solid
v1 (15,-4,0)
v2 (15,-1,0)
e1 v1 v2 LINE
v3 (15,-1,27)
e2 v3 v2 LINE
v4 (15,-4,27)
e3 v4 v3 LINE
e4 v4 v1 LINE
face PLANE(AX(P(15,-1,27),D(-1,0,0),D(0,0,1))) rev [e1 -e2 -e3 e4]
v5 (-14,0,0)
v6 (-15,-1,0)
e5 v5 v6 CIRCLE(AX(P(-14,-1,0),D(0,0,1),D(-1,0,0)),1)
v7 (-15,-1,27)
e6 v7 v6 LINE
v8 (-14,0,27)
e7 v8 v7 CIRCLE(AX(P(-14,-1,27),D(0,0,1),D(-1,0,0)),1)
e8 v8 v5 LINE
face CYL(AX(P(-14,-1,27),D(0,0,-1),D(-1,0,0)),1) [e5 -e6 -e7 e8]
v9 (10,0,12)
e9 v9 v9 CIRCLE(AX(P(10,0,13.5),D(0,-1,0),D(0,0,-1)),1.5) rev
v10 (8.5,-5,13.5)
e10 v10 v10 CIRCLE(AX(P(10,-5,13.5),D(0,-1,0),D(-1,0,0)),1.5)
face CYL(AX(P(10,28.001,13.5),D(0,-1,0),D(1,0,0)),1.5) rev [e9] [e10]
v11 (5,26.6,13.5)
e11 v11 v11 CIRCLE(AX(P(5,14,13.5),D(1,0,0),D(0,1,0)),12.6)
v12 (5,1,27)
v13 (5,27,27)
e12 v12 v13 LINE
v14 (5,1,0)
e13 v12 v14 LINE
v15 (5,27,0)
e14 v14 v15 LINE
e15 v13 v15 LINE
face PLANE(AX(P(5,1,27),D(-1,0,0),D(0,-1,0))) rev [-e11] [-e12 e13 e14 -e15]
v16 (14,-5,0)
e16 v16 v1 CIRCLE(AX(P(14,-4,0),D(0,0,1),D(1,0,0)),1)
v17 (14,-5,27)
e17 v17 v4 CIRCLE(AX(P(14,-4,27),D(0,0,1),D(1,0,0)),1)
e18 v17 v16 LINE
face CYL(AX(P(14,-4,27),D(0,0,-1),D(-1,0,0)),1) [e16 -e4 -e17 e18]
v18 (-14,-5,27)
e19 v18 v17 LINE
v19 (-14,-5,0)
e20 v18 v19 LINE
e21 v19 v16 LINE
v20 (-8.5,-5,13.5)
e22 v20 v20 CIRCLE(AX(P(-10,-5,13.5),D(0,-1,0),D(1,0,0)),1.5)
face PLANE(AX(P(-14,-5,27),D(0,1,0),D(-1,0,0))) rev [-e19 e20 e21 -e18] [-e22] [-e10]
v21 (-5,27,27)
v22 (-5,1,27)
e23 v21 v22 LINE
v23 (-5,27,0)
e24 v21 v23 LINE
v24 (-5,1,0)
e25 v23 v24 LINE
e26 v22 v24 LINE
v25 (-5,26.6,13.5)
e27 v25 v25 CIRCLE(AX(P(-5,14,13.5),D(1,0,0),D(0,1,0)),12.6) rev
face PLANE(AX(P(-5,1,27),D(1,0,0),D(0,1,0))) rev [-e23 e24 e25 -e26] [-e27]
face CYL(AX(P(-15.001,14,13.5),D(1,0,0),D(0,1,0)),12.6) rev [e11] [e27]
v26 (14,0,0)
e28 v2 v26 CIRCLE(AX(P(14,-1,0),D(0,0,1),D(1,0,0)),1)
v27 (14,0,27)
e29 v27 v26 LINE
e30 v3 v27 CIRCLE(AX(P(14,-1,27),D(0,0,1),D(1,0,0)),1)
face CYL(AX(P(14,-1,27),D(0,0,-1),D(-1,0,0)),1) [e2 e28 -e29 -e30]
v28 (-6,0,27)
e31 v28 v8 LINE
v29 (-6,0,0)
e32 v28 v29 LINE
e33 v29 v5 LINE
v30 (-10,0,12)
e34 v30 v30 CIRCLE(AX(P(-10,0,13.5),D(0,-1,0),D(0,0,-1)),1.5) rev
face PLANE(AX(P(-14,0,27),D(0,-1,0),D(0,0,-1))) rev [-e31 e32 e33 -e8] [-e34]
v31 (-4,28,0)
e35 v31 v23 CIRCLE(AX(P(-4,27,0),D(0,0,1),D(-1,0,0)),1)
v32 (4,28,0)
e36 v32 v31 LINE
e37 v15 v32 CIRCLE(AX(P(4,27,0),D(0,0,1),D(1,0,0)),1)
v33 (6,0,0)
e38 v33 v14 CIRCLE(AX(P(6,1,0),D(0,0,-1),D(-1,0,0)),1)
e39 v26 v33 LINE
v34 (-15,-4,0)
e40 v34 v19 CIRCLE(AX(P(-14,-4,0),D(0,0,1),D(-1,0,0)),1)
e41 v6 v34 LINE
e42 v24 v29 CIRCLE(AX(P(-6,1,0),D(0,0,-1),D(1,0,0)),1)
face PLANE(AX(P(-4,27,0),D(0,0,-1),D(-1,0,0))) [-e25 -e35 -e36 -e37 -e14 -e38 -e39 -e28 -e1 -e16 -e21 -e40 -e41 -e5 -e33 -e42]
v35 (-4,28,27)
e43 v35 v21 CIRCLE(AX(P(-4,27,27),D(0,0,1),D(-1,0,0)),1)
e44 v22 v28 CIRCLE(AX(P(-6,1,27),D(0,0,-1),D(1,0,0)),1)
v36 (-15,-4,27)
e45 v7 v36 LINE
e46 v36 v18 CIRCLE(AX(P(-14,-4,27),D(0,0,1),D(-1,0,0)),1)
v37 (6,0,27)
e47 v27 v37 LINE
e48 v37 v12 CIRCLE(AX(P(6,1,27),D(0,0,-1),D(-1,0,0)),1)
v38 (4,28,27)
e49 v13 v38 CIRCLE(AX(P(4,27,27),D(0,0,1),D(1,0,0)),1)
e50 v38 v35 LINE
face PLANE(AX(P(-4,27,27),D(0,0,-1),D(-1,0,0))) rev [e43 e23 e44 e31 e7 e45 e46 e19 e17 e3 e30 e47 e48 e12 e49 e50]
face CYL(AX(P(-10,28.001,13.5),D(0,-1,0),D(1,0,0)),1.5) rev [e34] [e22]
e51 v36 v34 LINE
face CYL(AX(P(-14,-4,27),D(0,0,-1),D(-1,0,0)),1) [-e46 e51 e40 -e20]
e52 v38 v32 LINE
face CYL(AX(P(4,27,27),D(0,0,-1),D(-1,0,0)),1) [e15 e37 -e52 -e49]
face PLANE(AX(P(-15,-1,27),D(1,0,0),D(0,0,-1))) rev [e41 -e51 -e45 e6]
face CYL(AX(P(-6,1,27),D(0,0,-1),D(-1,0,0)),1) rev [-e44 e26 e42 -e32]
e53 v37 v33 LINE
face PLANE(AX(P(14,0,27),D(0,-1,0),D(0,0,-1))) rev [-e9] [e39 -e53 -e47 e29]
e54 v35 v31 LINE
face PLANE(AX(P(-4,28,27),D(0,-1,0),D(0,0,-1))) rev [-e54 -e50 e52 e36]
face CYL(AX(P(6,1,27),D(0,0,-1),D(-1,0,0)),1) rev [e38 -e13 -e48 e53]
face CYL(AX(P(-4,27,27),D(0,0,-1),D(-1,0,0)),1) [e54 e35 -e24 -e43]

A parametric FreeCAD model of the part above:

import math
import FreeCAD as App
import Part
import Sketcher
from FreeCAD import Vector
Q = App.Units.Quantity

doc = App.newDocument("Part")
params = doc.addObject("Spreadsheet::Sheet", "Params")
for row, (alias, value) in enumerate([
    ("sketch1_radius", "1 mm"),
    ("sketch1_width", "8 mm"),
    ("sketch1_height", "3 mm"),
    ("sketch1_height2", "26 mm"),
    ("pad1_length", "27 mm"),
    ("sketch2_diameter", "25.2 mm"),
    ("sketch3_diameter", "3 mm"),
    ("sketch4_diameter", "3 mm"),
], start=1):
    params.set(f"A{row}", alias)
    params.set(f"B{row}", "=" + value)
    params.setAlias(f"B{row}", alias)

body = doc.addObject("PartDesign::Body", "Body")

# Sketch on XY plane
sketch1 = body.newObject("Sketcher::SketchObject", "Sketch")
sketch1.AttachmentSupport = (doc.getObject("XY_Plane"), [""])
sketch1.MapMode = "FlatFace"
sketch1.addGeometry([
    Part.LineSegment(Vector(-6, 0, 0), Vector(-14, 0, 0)),  # 0
    Part.ArcOfCircle(Part.Circle(Vector(-14, -1, 0), Vector(0, 0, 1), 1), math.radians(90), math.radians(180)),  # 1
    Part.LineSegment(Vector(-15, -1, 0), Vector(-15, -4, 0)),  # 2
    Part.ArcOfCircle(Part.Circle(Vector(-14, -4, 0), Vector(0, 0, 1), 1), math.radians(-180), math.radians(-90)),  # 3
    Part.LineSegment(Vector(-14, -5, 0), Vector(14, -5, 0)),  # 4
    Part.ArcOfCircle(Part.Circle(Vector(14, -4, 0), Vector(0, 0, 1), 1), math.radians(-90), math.radians(0)),  # 5
    Part.LineSegment(Vector(15, -4, 0), Vector(15, -1, 0)),  # 6
    Part.ArcOfCircle(Part.Circle(Vector(14, -1, 0), Vector(0, 0, 1), 1), math.radians(0), math.radians(90)),  # 7
    Part.LineSegment(Vector(14, 0, 0), Vector(6, 0, 0)),  # 8
    Part.ArcOfCircle(Part.Circle(Vector(6, 1, 0), Vector(0, 0, 1), 1), math.radians(-180), math.radians(-90)),  # 9
    Part.LineSegment(Vector(5, 1, 0), Vector(5, 27, 0)),  # 10
    Part.ArcOfCircle(Part.Circle(Vector(4, 27, 0), Vector(0, 0, 1), 1), math.radians(0), math.radians(90)),  # 11
    Part.LineSegment(Vector(4, 28, 0), Vector(-4, 28, 0)),  # 12
    Part.ArcOfCircle(Part.Circle(Vector(-4, 27, 0), Vector(0, 0, 1), 1), math.radians(90), math.radians(180)),  # 13
    Part.LineSegment(Vector(-5, 27, 0), Vector(-5, 1, 0)),  # 14
    Part.ArcOfCircle(Part.Circle(Vector(-6, 1, 0), Vector(0, 0, 1), 1), math.radians(-90), math.radians(0)),  # 15
], False)
sketch1.addConstraint([
    Sketcher.Constraint("Tangent", 0, 2, 1, 1),
    Sketcher.Constraint("Tangent", 1, 2, 2, 1),
    Sketcher.Constraint("Tangent", 2, 2, 3, 1),
    Sketcher.Constraint("Tangent", 3, 2, 4, 1),
    Sketcher.Constraint("Tangent", 4, 2, 5, 1),
    Sketcher.Constraint("Tangent", 5, 2, 6, 1),
    Sketcher.Constraint("Tangent", 6, 2, 7, 1),
    Sketcher.Constraint("Tangent", 7, 2, 8, 1),
    Sketcher.Constraint("Tangent", 8, 2, 9, 2),
    Sketcher.Constraint("Tangent", 9, 1, 10, 1),
    Sketcher.Constraint("Tangent", 10, 2, 11, 1),
    Sketcher.Constraint("Tangent", 11, 2, 12, 1),
    Sketcher.Constraint("Tangent", 12, 2, 13, 1),
    Sketcher.Constraint("Tangent", 13, 2, 14, 1),
    Sketcher.Constraint("Tangent", 14, 2, 15, 2),
    Sketcher.Constraint("Tangent", 15, 1, 0, 1),
    Sketcher.Constraint("Horizontal", 0),
    Sketcher.Constraint("Vertical", 2),
    Sketcher.Constraint("Horizontal", 4),
    Sketcher.Constraint("Vertical", 6),
    Sketcher.Constraint("Horizontal", 8),
    Sketcher.Constraint("Vertical", 10),
    Sketcher.Constraint("Horizontal", 12),
    Sketcher.Constraint("Vertical", 14),
    Sketcher.Constraint("Equal", 1, 3),
    Sketcher.Constraint("Equal", 3, 5),
    Sketcher.Constraint("Equal", 5, 7),
    Sketcher.Constraint("Equal", 7, 9),
    Sketcher.Constraint("Equal", 9, 11),
    Sketcher.Constraint("Equal", 11, 13),
    Sketcher.Constraint("Equal", 13, 15),
    Sketcher.Constraint("Symmetric", 0, 2, 7, 2, -1, 1),
    Sketcher.Constraint("Symmetric", 9, 3, 15, 3, -2),
    Sketcher.Constraint("Equal", 8, 12),
    Sketcher.Constraint("Radius", 1, Q("1 mm")),
    Sketcher.Constraint("DistanceX", 0, 2, 0, 1, Q("8 mm")),
    Sketcher.Constraint("DistanceY", 2, 2, 2, 1, Q("3 mm")),
    Sketcher.Constraint("DistanceY", 10, 1, 10, 2, Q("26 mm")),
])
sketch1.setExpression("Constraints[34]", "Params.sketch1_radius")
sketch1.setExpression("Constraints[35]", "Params.sketch1_width")
sketch1.setExpression("Constraints[36]", "Params.sketch1_height")
sketch1.setExpression("Constraints[37]", "Params.sketch1_height2")
pad1 = body.newObject("PartDesign::Pad", "Pad")
pad1.Profile = sketch1
pad1.setExpression("Length", "Params.pad1_length")

# Sketch on YZ plane
sketch2 = body.newObject("Sketcher::SketchObject", "Sketch001")
sketch2.AttachmentSupport = (doc.getObject("YZ_Plane"), [""])
sketch2.MapMode = "FlatFace"
sketch2.AttachmentOffset = App.Placement(Vector(0, 0, 5), App.Rotation())
sketch2.addGeometry(Part.Circle(Vector(14, 14, 0), Vector(0, 0, 1), 13), False)
sketch2.addConstraint([
    Sketcher.Constraint("Diameter", 0, Q("25.2 mm")),
    Sketcher.Constraint("DistanceX", -1, 1, 0, 3, Q("14 mm")),
    Sketcher.Constraint("DistanceY", -1, 1, 0, 3, Q("13.5 mm")),
])
sketch2.setExpression("Constraints[0]", "Params.sketch2_diameter")
pocket1 = body.newObject("PartDesign::Pocket", "Pocket")
pocket1.Profile = sketch2
pocket1.Type = "UpToFirst"

# Sketch on XZ plane
sketch3 = body.newObject("Sketcher::SketchObject", "Sketch002")
sketch3.AttachmentSupport = (doc.getObject("XZ_Plane"), [""])
sketch3.MapMode = "FlatFace"
sketch3.AttachmentOffset = App.Placement(Vector(0, 0, 5), App.Rotation())
sketch3.addGeometry(Part.Circle(Vector(-10, 13.5, 0), Vector(0, 0, 1), 1.5), False)
sketch3.addConstraint([
    Sketcher.Constraint("Diameter", 0, Q("3 mm")),
    Sketcher.Constraint("DistanceX", 0, 3, -1, 1, Q("10 mm")),
    Sketcher.Constraint("DistanceY", -1, 1, 0, 3, Q("13.5 mm")),
])
sketch3.setExpression("Constraints[0]", "Params.sketch3_diameter")
pocket2 = body.newObject("PartDesign::Pocket", "Pocket001")
pocket2.Profile = sketch3
pocket2.Type = "UpToFirst"

# Sketch on XZ plane
sketch4 = body.newObject("Sketcher::SketchObject", "Sketch003")
sketch4.AttachmentSupport = (doc.getObject("XZ_Plane"), [""])
sketch4.MapMode = "FlatFace"
sketch4.AttachmentOffset = App.Placement(Vector(0, 0, 5), App.Rotation())
sketch4.addGeometry(Part.Circle(Vector(10, 13.5, 0), Vector(0, 0, 1), 1.5), False)
sketch4.addConstraint([
    Sketcher.Constraint("Diameter", 0, Q("3 mm")),
    Sketcher.Constraint("DistanceX", -1, 1, 0, 3, Q("10 mm")),
    Sketcher.Constraint("DistanceY", -1, 1, 0, 3, Q("13.5 mm")),
])
sketch4.setExpression("Constraints[0]", "Params.sketch4_diameter")
pocket3 = body.newObject("PartDesign::Pocket", "Pocket002")
pocket3.Profile = sketch4
pocket3.Type = "UpToFirst"

doc.recompute()
